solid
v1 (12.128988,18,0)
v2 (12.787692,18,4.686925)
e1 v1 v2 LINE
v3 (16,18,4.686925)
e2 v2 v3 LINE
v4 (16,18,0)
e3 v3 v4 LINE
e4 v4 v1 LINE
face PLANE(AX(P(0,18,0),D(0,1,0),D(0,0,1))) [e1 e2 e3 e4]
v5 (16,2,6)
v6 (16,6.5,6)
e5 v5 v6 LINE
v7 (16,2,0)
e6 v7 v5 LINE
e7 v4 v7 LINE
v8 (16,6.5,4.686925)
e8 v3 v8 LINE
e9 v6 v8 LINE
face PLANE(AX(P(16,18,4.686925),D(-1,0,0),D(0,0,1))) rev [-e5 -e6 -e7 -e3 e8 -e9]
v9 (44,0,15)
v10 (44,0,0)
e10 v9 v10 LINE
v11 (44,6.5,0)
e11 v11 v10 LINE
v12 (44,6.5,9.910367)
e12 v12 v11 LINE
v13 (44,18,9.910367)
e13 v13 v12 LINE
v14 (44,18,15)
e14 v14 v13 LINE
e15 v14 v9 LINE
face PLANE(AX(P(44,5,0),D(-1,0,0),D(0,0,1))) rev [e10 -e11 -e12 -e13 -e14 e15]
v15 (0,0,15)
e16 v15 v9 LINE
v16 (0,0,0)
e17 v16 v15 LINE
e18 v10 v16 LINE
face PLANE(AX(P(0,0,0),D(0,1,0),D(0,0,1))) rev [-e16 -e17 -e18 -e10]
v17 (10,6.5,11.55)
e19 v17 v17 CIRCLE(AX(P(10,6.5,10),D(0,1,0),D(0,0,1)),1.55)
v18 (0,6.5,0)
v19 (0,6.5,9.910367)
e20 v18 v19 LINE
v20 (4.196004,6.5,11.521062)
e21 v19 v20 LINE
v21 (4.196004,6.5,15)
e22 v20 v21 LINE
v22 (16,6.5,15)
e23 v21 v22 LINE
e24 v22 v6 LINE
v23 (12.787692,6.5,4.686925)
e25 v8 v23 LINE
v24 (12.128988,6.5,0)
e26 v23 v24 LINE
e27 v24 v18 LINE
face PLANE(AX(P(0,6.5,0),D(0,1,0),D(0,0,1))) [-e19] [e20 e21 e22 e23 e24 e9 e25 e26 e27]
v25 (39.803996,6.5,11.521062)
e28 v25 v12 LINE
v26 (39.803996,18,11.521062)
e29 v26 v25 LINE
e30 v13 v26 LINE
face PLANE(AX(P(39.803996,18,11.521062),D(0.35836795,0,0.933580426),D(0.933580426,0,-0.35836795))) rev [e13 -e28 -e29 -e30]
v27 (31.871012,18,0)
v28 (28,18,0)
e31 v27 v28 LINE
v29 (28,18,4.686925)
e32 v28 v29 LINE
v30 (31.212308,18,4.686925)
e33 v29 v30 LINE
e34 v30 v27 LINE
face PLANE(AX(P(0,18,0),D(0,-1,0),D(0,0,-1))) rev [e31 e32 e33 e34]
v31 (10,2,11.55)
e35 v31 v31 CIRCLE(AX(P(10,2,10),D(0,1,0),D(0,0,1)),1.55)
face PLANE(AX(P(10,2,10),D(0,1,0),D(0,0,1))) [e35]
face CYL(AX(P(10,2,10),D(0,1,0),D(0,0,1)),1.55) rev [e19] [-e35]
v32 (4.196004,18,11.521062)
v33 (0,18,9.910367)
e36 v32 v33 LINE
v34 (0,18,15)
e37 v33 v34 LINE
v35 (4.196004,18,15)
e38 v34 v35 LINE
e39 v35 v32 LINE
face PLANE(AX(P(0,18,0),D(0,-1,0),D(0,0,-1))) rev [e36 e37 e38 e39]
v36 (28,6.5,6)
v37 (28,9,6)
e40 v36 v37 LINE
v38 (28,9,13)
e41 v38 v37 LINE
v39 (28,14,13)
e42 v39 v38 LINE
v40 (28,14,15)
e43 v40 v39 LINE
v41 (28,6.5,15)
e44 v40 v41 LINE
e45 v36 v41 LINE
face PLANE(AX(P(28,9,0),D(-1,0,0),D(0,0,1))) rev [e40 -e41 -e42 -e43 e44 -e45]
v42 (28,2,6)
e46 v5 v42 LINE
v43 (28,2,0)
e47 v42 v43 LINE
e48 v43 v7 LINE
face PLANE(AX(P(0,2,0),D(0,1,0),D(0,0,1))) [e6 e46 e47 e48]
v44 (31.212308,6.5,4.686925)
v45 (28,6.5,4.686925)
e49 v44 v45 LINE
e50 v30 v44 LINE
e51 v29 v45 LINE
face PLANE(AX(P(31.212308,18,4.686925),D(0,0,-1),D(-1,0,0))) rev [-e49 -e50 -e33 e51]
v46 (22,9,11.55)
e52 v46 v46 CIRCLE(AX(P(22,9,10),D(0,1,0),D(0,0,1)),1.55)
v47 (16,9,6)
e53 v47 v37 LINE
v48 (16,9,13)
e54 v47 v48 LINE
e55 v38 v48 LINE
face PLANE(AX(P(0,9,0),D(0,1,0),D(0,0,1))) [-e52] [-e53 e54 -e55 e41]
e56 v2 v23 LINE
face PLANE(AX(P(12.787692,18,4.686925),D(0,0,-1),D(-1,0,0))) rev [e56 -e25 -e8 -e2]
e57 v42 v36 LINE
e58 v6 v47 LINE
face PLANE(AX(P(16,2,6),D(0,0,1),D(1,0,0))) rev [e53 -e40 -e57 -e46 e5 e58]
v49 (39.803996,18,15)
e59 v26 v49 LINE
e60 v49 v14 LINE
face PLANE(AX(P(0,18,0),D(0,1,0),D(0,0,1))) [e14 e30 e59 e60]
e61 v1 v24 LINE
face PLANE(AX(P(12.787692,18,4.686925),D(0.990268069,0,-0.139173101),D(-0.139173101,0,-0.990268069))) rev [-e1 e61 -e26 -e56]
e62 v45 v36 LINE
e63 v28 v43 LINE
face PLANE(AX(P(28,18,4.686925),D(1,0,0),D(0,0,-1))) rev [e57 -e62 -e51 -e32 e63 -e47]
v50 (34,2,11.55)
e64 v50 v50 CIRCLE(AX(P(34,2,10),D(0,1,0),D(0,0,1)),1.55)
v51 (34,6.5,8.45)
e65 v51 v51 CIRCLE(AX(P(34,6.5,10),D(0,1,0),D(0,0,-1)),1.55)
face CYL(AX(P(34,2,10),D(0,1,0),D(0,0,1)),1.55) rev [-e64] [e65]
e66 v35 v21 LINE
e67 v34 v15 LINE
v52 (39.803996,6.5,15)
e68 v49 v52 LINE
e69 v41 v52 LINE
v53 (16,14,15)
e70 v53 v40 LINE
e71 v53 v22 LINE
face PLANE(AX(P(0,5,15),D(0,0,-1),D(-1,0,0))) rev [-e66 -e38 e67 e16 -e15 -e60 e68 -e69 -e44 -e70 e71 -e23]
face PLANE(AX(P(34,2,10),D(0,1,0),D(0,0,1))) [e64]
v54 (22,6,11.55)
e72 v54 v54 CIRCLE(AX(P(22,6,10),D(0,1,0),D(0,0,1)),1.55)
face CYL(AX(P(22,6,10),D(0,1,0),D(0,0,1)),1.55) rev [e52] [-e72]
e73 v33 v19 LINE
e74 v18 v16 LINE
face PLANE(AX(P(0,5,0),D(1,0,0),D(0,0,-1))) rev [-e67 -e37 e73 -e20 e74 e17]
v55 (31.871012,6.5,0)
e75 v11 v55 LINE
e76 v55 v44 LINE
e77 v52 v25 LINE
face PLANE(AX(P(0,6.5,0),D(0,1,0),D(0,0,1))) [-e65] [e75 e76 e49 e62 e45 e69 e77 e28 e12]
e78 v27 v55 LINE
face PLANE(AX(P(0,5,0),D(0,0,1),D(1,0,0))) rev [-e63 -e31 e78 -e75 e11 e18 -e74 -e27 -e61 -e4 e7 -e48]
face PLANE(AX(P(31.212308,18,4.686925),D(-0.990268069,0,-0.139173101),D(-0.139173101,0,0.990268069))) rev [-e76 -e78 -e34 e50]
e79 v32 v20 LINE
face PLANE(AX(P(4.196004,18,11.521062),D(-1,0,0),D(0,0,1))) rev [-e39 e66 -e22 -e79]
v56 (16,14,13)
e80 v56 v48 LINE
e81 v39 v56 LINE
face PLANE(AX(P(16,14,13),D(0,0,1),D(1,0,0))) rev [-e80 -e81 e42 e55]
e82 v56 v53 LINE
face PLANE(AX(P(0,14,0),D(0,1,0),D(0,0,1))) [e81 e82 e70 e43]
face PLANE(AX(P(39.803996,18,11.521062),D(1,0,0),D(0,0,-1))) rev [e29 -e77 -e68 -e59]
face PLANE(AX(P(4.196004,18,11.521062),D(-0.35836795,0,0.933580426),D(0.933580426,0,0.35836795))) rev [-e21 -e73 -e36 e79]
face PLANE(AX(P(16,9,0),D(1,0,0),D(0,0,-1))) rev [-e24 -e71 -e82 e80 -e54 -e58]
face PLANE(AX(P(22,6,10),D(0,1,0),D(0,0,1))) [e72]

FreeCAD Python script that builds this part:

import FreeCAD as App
import Part
import Sketcher
Q = App.Units.Quantity


def add_polygon(sketch, points):
    """Adds a closed chain of lines whose ends are joined by coincident constraints."""
    first, n = sketch.GeometryCount, len(points)
    for a, b in zip(points, points[1:] + points[:1]):
        sketch.addGeometry(Part.LineSegment(App.Vector(*a, 0), App.Vector(*b, 0)), False)
    for i in range(n):
        sketch.addConstraint(Sketcher.Constraint("Coincident", first + i, 2, first + (i + 1) % n, 1))

doc = App.newDocument("Part")
body = doc.addObject("PartDesign::Body", "Body")

# Sketch on XZ plane
sketch1 = body.newObject("Sketcher::SketchObject", "Sketch")
sketch1.AttachmentSupport = (doc.getObject("XZ_Plane"), [""])
sketch1.MapMode = "FlatFace"
add_polygon(sketch1, [(0, 0), (0, 15), (44, 15), (44, 0)])  # lines 0-3
sketch1.addConstraint([
    Sketcher.Constraint("Vertical", 0),
    Sketcher.Constraint("Horizontal", 1),
    Sketcher.Constraint("Vertical", 2),
    Sketcher.Constraint("Horizontal", 3),
    Sketcher.Constraint("Coincident", 3, 2, -1, 1),
    Sketcher.Constraint("DistanceX", 1, 1, 1, 2, Q("44 mm")),
    Sketcher.Constraint("DistanceY", 0, 1, 0, 2, Q("15 mm")),
])
pad1 = body.newObject("PartDesign::Pad", "Pad")
pad1.Profile = sketch1
pad1.Length = 5
pad1.Reversed = True

# Sketch on XZ plane
sketch2 = body.newObject("Sketcher::SketchObject", "Sketch001")
sketch2.AttachmentSupport = (doc.getObject("XZ_Plane"), [""])
sketch2.MapMode = "FlatFace"
sketch2.AttachmentOffset = App.Placement(App.Vector(0, 0, -5), App.Rotation())
add_polygon(sketch2, [(16, 0), (16, 15), (28, 15), (28, 0)])  # lines 0-3
sketch2.addConstraint([
    Sketcher.Constraint("Vertical", 0),
    Sketcher.Constraint("Horizontal", 1),
    Sketcher.Constraint("Vertical", 2),
    Sketcher.Constraint("Horizontal", 3),
    Sketcher.Constraint("PointOnObject", 2, 2, -1),
    Sketcher.Constraint("DistanceX", 1, 1, 1, 2, Q("12 mm")),
    Sketcher.Constraint("DistanceY", 0, 1, 0, 2, Q("15 mm")),
    Sketcher.Constraint("DistanceX", -1, 1, 0, 2, Q("16 mm")),
])
pad2 = body.newObject("PartDesign::Pad", "Pad001")
pad2.Profile = sketch2
pad2.Length = 4
pad2.Reversed = True

# Sketch on XZ plane
sketch3 = body.newObject("Sketcher::SketchObject", "Sketch002")
sketch3.AttachmentSupport = (doc.getObject("XZ_Plane"), [""])
sketch3.MapMode = "FlatFace"
sketch3.AttachmentOffset = App.Placement(App.Vector(0, 0, -5), App.Rotation())
sketch3.addGeometry([
    Part.Circle(App.Vector(10, 10, 0), App.Vector(0, 0, 1), 1.6),
    Part.Circle(App.Vector(34, 10, 0), App.Vector(0, 0, 1), 1.6),
], False)
sketch3.addConstraint([
    Sketcher.Constraint("Equal", 0, 1),
    Sketcher.Constraint("Horizontal", 0, 3, 1, 3),
    Sketcher.Constraint("Diameter", 0, Q("3.1 mm")),
    Sketcher.Constraint("DistanceX", -1, 1, 0, 3, Q("10 mm")),
    Sketcher.Constraint("DistanceY", -1, 1, 0, 3, Q("10 mm")),
    Sketcher.Constraint("DistanceX", -1, 1, 1, 3, Q("34 mm")),
])
pocket1 = body.newObject("PartDesign::Pocket", "Pocket")
pocket1.Profile = sketch3
pocket1.Length = 3
pocket1.Reversed = True

# Sketch on XZ plane
sketch4 = body.newObject("Sketcher::SketchObject", "Sketch003")
sketch4.AttachmentSupport = (doc.getObject("XZ_Plane"), [""])
sketch4.MapMode = "FlatFace"
sketch4.AttachmentOffset = App.Placement(App.Vector(0, 0, -9), App.Rotation())
sketch4.addGeometry(Part.Circle(App.Vector(22, 10, 0), App.Vector(0, 0, 1), 1.6), False)
sketch4.addConstraint([
    Sketcher.Constraint("Diameter", 0, Q("3.1 mm")),
    Sketcher.Constraint("DistanceX", -1, 1, 0, 3, Q("22 mm")),
    Sketcher.Constraint("DistanceY", -1, 1, 0, 3, Q("10 mm")),
])
pocket2 = body.newObject("PartDesign::Pocket", "Pocket001")
pocket2.Profile = sketch4
pocket2.Length = 3
pocket2.Reversed = True

# Sketch on XZ plane
sketch5 = body.newObject("Sketcher::SketchObject", "Sketch004")
sketch5.AttachmentSupport = (doc.getObject("XZ_Plane"), [""])
sketch5.MapMode = "FlatFace"
sketch5.AttachmentOffset = App.Placement(App.Vector(0, 0, -9), App.Rotation())
add_polygon(sketch5, [(16, 13), (16, 15), (28, 15), (28, 13)])  # lines 0-3
sketch5.addConstraint([
    Sketcher.Constraint("Vertical", 0),
    Sketcher.Constraint("Horizontal", 1),
    Sketcher.Constraint("Vertical", 2),
    Sketcher.Constraint("Horizontal", 3),
    Sketcher.Constraint("DistanceX", 1, 1, 1, 2, Q("12 mm")),
    Sketcher.Constraint("DistanceY", 0, 1, 0, 2, Q("2 mm")),
    Sketcher.Constraint("DistanceX", -1, 1, 0, 2, Q("16 mm")),
    Sketcher.Constraint("DistanceY", -1, 1, 0, 2, Q("15 mm")),
])
pad3 = body.newObject("PartDesign::Pad", "Pad002")
pad3.Profile = sketch5
pad3.Length = 5
pad3.Reversed = True

# Sketch on XZ plane
sketch6 = body.newObject("Sketcher::SketchObject", "Sketch005")
sketch6.AttachmentSupport = (doc.getObject("XZ_Plane"), [""])
sketch6.MapMode = "FlatFace"
sketch6.AttachmentOffset = App.Placement(App.Vector(0, 0, -5), App.Rotation())
add_polygon(sketch6, [(31.2, 4.7), (31.9, 0), (28, 0), (28, 4.7)])  # lines 0-3
add_polygon(sketch6, [(44, 9.9), (39.8, 11.5), (39.8, 15), (44, 15)])  # lines 4-7
add_polygon(sketch6, [(12.1, 0), (12.8, 4.7), (16, 4.7), (16, 0)])  # lines 8-11
add_polygon(sketch6, [(4.2, 11.5), (0, 9.9), (0, 15), (4.2, 15)])  # lines 12-15
sketch6.addConstraint([
    Sketcher.Constraint("Horizontal", 1),
    Sketcher.Constraint("Vertical", 2),
    Sketcher.Constraint("Horizontal", 3),
    Sketcher.Constraint("Vertical", 5),
    Sketcher.Constraint("Horizontal", 6),
    Sketcher.Constraint("Vertical", 7),
    Sketcher.Constraint("Horizontal", 9),
    Sketcher.Constraint("Vertical", 10),
    Sketcher.Constraint("Horizontal", 11),
    Sketcher.Constraint("Vertical", 13),
    Sketcher.Constraint("Horizontal", 14),
    Sketcher.Constraint("Vertical", 15),
    Sketcher.Constraint("PointOnObject", 0, 2, -1),
    Sketcher.Constraint("PointOnObject", 10, 2, -1),
    Sketcher.Constraint("PointOnObject", 12, 2, -2),
    Sketcher.Constraint("Horizontal", 3, 2, 8, 2),
    Sketcher.Constraint("Horizontal", 7, 2, 12, 2),
    Sketcher.Constraint("Horizontal", 6, 2, 13, 2),
    Sketcher.Constraint("Horizontal", 4, 2, 15, 2),
    Sketcher.Constraint("Equal", 3, 9),
    Sketcher.Constraint("Equal", 1, 11),
    Sketcher.Constraint("Equal", 6, 14),
    Sketcher.Constraint("Angle", 0, Q("-82 deg")),
    Sketcher.Constraint("Angle", 4, Q("159 deg")),
    Sketcher.Constraint("DistanceX", -1, 1, 1, 2, Q("28 mm")),
    Sketcher.Constraint("DistanceY", -1, 1, 5, 2, Q("15 mm")),
    Sketcher.Constraint("DistanceX", -1, 1, 6, 2, Q("44 mm")),
    Sketcher.Constraint("DistanceX", -1, 1, 9, 2, Q("16 mm")),
    Sketcher.Constraint("DistanceX", 1, 2, 1, 1, Q("3.871012 mm")),
    Sketcher.Constraint("Distance", 4, Q("4.494529 mm")),
    Sketcher.Constraint("DistanceX", 3, 1, 3, 2, Q("3.212308 mm")),
    Sketcher.Constraint("DistanceY", 5, 1, 5, 2, Q("3.478938 mm")),
])
pad4 = body.newObject("PartDesign::Pad", "Pad003")
pad4.Profile = sketch6
pad4.Length = 13
pad4.Reversed = True

# Sketch on XZ plane
sketch7 = body.newObject("Sketcher::SketchObject", "Sketch006")
sketch7.AttachmentSupport = (doc.getObject("XZ_Plane"), [""])
sketch7.MapMode = "FlatFace"
sketch7.AttachmentOffset = App.Placement(App.Vector(0, 0, -9), App.Rotation())
add_polygon(sketch7, [(16, 0), (16, 6), (28, 6), (28, 0)])  # lines 0-3
sketch7.addConstraint([
    Sketcher.Constraint("Vertical", 0),
    Sketcher.Constraint("Horizontal", 1),
    Sketcher.Constraint("Vertical", 2),
    Sketcher.Constraint("Horizontal", 3),
    Sketcher.Constraint("PointOnObject", 2, 2, -1),
    Sketcher.Constraint("DistanceX", 1, 1, 1, 2, Q("12 mm")),
    Sketcher.Constraint("DistanceY", 0, 1, 0, 2, Q("6 mm")),
    Sketcher.Constraint("DistanceX", -1, 1, 0, 2, Q("16 mm")),
])
pocket3 = body.newObject("PartDesign::Pocket", "Pocket002")
pocket3.Profile = sketch7
pocket3.Length = 7
pocket3.Reversed = True

# Sketch on XZ plane
sketch8 = body.newObject("Sketcher::SketchObject", "Sketch007")
sketch8.AttachmentSupport = (doc.getObject("XZ_Plane"), [""])
sketch8.MapMode = "FlatFace"
sketch8.AttachmentOffset = App.Placement(App.Vector(0, 0, -5), App.Rotation())
add_polygon(sketch8, [(16, 15), (16, 4.7), (12.8, 4.7), (12.1, 0), (0, 0), (0, 9.9), (4.2, 11.5), (4.2, 15)])  # lines 0-7
sketch8.addGeometry(Part.Circle(App.Vector(10, 10, 0), App.Vector(0, 0, 1), 1.6), False)  # 8
add_polygon(sketch8, [(39.8, 15), (39.8, 11.5), (44, 9.9), (44, 0), (31.9, 0), (31.2, 4.7), (28, 4.7), (28, 15)])  # lines 9-16
sketch8.addGeometry(Part.Circle(App.Vector(34, 10, 0), App.Vector(0, 0, 1), 1.6), False)  # 17
sketch8.addConstraint([
    Sketcher.Constraint("Vertical", 0),
    Sketcher.Constraint("Horizontal", 1),
    Sketcher.Constraint("Horizontal", 3),
    Sketcher.Constraint("Vertical", 4),
    Sketcher.Constraint("Vertical", 6),
    Sketcher.Constraint("Horizontal", 7),
    Sketcher.Constraint("Vertical", 9),
    Sketcher.Constraint("Vertical", 11),
    Sketcher.Constraint("Horizontal", 12),
    Sketcher.Constraint("Horizontal", 14),
    Sketcher.Constraint("Vertical", 15),
    Sketcher.Constraint("Horizontal", 16),
    Sketcher.Constraint("Coincident", 3, 2, -1, 1),
    Sketcher.Constraint("Equal", 8, 17),
    Sketcher.Constraint("PointOnObject", 11, 2, -1),
    Sketcher.Constraint("Horizontal", 8, 3, 17, 3),
    Sketcher.Constraint("Horizontal", 5, 2, 9, 2),
    Sketcher.Constraint("Horizontal", 4, 2, 10, 2),
    Sketcher.Constraint("Horizontal", 1, 2, 13, 2),
    Sketcher.Constraint("Horizontal", 7, 2, 15, 2),
    Sketcher.Constraint("Equal", 3, 12),
    Sketcher.Constraint("Equal", 1, 14),
    Sketcher.Constraint("Equal", 7, 16),
    Sketcher.Constraint("Equal", 5, 10),
    Sketcher.Constraint("Diameter", 8, Q("3.1 mm")),
    Sketcher.Constraint("Angle", 2, Q("-98 deg")),
    Sketcher.Constraint("Angle", 5, Q("21 deg")),
    Sketcher.Constraint("DistanceX", -1, 1, 8, 3, Q("10 mm")),
    Sketcher.Constraint("DistanceY", -1, 1, 8, 3, Q("10 mm")),
    Sketcher.Constraint("DistanceX", -1, 1, 17, 3, Q("34 mm")),
    Sketcher.Constraint("DistanceX", -1, 1, 0, 2, Q("16 mm")),
    Sketcher.Constraint("DistanceY", -1, 1, 6, 2, Q("15 mm")),
    Sketcher.Constraint("DistanceX", -1, 1, 10, 2, Q("44 mm")),
    Sketcher.Constraint("DistanceX", 3, 2, 3, 1, Q("12.128988 mm")),
    Sketcher.Constraint("Distance", 5, Q("4.494529 mm")),
    Sketcher.Constraint("DistanceX", 1, 2, 1, 1, Q("3.212308 mm")),
    Sketcher.Constraint("DistanceY", 4, 1, 4, 2, Q("9.910367 mm")),
])
pad5 = body.newObject("PartDesign::Pad", "Pad004")
pad5.Profile = sketch8
pad5.Length = 1.5
pad5.Reversed = True

doc.recompute()
